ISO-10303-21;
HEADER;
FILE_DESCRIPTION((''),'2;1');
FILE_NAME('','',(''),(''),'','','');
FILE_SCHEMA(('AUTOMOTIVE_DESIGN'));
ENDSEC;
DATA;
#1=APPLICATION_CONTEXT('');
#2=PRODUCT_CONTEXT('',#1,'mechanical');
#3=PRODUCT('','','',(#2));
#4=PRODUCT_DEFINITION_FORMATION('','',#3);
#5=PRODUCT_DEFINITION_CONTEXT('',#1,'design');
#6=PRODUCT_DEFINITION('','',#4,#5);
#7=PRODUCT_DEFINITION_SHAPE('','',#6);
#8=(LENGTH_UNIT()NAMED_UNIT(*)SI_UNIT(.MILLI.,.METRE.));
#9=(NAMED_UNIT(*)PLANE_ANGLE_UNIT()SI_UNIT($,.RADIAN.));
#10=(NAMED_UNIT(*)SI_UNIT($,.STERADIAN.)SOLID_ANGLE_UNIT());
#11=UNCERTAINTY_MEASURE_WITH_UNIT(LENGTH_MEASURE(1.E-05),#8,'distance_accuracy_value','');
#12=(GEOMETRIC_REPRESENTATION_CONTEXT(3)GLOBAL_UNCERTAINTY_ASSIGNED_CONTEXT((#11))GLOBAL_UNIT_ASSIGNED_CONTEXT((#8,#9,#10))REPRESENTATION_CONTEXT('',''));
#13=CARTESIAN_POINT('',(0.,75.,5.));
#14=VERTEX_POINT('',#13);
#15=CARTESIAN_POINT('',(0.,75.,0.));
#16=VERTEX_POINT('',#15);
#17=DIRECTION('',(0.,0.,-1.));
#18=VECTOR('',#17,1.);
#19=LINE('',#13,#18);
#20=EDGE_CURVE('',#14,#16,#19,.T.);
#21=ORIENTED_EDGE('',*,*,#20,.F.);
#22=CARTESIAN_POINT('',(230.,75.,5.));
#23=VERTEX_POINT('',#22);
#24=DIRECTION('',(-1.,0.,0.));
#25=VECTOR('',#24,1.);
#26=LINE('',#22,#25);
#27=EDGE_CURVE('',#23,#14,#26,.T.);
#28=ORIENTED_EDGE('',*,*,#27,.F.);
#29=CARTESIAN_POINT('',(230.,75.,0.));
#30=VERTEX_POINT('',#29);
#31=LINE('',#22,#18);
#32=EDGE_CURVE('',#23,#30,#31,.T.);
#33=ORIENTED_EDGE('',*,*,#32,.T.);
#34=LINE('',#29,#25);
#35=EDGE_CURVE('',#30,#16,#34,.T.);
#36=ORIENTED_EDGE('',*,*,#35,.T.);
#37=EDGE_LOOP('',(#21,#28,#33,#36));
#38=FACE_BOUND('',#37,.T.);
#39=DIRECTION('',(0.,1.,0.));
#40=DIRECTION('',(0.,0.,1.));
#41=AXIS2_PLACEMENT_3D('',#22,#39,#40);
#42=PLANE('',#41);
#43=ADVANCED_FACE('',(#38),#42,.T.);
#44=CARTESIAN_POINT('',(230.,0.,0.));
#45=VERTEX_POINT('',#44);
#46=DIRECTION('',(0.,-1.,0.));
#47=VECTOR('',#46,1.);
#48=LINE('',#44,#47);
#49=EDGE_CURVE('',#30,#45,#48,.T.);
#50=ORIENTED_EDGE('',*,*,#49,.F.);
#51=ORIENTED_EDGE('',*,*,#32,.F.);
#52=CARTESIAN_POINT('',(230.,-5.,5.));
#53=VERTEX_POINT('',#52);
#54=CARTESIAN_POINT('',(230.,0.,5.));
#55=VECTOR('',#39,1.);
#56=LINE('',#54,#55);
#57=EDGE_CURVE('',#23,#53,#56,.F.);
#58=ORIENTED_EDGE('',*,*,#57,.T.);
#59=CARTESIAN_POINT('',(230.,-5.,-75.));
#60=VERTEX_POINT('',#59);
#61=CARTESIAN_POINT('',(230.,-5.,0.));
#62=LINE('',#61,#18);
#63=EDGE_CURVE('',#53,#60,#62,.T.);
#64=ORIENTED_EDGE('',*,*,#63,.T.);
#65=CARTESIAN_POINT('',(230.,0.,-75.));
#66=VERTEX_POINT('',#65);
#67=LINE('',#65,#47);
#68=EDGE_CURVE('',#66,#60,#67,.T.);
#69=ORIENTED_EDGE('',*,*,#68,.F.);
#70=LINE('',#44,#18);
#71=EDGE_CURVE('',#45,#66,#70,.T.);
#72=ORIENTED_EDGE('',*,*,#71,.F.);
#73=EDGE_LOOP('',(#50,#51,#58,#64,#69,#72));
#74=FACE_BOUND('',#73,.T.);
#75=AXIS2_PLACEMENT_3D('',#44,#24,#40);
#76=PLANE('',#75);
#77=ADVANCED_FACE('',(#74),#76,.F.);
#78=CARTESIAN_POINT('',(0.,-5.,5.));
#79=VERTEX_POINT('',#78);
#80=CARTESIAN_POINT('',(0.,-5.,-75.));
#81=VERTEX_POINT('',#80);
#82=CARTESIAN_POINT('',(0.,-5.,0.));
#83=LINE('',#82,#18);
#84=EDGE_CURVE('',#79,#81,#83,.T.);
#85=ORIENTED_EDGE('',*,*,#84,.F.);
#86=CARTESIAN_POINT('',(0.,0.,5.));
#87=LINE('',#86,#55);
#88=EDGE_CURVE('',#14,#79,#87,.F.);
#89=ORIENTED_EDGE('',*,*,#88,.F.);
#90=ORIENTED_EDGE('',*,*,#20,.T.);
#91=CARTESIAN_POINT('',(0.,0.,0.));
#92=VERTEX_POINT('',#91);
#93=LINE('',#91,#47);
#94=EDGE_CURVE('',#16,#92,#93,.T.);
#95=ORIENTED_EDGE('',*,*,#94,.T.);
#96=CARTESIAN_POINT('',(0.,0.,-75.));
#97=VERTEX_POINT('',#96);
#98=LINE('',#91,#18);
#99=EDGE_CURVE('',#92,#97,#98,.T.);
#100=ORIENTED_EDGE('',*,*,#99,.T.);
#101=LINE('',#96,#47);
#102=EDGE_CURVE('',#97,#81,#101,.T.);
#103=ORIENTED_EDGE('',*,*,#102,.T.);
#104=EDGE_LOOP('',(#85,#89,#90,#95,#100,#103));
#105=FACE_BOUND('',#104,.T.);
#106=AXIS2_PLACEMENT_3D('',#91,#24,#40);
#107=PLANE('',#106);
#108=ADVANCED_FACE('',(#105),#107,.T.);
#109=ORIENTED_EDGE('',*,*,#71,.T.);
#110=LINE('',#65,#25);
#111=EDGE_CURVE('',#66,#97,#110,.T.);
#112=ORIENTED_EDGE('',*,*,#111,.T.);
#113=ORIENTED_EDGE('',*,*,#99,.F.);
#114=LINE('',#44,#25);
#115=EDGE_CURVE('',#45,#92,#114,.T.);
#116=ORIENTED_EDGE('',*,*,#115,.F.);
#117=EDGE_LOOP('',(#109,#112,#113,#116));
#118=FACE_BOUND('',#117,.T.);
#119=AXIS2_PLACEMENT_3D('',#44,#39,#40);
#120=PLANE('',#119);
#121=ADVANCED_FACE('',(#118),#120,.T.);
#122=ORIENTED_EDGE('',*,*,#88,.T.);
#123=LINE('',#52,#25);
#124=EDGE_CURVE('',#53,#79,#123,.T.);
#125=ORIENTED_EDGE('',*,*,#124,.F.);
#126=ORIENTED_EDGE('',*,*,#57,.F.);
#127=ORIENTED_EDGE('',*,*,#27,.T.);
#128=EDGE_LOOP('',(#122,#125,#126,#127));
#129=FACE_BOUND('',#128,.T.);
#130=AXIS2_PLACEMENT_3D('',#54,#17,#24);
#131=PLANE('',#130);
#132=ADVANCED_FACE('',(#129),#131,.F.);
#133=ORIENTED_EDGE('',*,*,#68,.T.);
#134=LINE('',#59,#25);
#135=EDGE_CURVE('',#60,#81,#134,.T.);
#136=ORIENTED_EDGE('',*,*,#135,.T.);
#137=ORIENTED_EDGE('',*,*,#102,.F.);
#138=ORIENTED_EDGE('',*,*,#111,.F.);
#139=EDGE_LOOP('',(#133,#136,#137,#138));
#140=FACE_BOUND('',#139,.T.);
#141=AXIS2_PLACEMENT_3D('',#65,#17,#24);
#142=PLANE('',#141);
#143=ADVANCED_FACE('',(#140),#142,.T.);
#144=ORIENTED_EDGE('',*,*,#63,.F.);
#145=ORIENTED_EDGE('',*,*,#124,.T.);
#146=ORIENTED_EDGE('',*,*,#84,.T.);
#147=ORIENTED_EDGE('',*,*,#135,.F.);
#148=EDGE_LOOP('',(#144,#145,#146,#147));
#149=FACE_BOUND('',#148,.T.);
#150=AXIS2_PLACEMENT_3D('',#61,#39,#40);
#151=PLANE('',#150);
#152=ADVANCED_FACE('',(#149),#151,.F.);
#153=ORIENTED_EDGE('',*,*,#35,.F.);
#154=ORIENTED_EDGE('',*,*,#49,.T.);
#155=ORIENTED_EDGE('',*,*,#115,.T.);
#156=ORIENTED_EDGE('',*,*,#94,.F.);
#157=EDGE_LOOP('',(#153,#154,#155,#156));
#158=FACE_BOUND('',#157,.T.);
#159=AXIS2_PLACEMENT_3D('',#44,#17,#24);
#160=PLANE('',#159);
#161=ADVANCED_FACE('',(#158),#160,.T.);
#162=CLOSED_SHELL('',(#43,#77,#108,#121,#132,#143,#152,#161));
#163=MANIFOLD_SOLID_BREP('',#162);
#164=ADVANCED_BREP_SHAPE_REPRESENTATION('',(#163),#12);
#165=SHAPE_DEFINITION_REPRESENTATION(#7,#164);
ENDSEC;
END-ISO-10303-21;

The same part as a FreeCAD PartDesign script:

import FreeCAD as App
import Part
import Sketcher

doc = App.newDocument("Part")
body = doc.addObject("PartDesign::Body", "Body")

sketch1 = body.newObject("Sketcher::SketchObject", "Sketch")
sketch1.AttachmentSupport = (doc.getObject("YZ_Plane"), [""])
sketch1.MapMode = "FlatFace"
sketch1.addGeometry([
    Part.LineSegment(App.Vector(0, -75, 0), App.Vector(0, 0, 0)),
    Part.LineSegment(App.Vector(0, 0, 0), App.Vector(75, 0, 0)),
    Part.LineSegment(App.Vector(75, 0, 0), App.Vector(75, 5, 0)),
    Part.LineSegment(App.Vector(75, 5, 0), App.Vector(-5, 5, 0)),
    Part.LineSegment(App.Vector(-5, 5, 0), App.Vector(-5, -75, 0)),
    Part.LineSegment(App.Vector(-5, -75, 0), App.Vector(0, -75, 0)),
], False)
sketch1.addConstraint([
    Sketcher.Constraint("Coincident", 0, 2, 1, 1),
    Sketcher.Constraint("Coincident", 1, 2, 2, 1),
    Sketcher.Constraint("Coincident", 2, 2, 3, 1),
    Sketcher.Constraint("Coincident", 3, 2, 4, 1),
    Sketcher.Constraint("Coincident", 4, 2, 5, 1),
    Sketcher.Constraint("Coincident", 5, 2, 0, 1),
    Sketcher.Constraint("Vertical", 0),
    Sketcher.Constraint("Horizontal", 1),
    Sketcher.Constraint("Vertical", 2),
    Sketcher.Constraint("Horizontal", 3),
    Sketcher.Constraint("Vertical", 4),
    Sketcher.Constraint("Horizontal", 5),
    Sketcher.Constraint("Coincident", 0, 2, -1, 1),
    Sketcher.Constraint("Equal", 1, 0),
    Sketcher.Constraint("Equal", 5, 2),
    Sketcher.Constraint("DistanceX", 1, 1, 1, 2, 75.0),
    Sketcher.Constraint("DistanceX", 3, 2, 3, 1, 80.0),
])
pad1 = body.newObject("PartDesign::Pad", "Pad")
pad1.Profile = sketch1
pad1.Length = 230

doc.recompute()
